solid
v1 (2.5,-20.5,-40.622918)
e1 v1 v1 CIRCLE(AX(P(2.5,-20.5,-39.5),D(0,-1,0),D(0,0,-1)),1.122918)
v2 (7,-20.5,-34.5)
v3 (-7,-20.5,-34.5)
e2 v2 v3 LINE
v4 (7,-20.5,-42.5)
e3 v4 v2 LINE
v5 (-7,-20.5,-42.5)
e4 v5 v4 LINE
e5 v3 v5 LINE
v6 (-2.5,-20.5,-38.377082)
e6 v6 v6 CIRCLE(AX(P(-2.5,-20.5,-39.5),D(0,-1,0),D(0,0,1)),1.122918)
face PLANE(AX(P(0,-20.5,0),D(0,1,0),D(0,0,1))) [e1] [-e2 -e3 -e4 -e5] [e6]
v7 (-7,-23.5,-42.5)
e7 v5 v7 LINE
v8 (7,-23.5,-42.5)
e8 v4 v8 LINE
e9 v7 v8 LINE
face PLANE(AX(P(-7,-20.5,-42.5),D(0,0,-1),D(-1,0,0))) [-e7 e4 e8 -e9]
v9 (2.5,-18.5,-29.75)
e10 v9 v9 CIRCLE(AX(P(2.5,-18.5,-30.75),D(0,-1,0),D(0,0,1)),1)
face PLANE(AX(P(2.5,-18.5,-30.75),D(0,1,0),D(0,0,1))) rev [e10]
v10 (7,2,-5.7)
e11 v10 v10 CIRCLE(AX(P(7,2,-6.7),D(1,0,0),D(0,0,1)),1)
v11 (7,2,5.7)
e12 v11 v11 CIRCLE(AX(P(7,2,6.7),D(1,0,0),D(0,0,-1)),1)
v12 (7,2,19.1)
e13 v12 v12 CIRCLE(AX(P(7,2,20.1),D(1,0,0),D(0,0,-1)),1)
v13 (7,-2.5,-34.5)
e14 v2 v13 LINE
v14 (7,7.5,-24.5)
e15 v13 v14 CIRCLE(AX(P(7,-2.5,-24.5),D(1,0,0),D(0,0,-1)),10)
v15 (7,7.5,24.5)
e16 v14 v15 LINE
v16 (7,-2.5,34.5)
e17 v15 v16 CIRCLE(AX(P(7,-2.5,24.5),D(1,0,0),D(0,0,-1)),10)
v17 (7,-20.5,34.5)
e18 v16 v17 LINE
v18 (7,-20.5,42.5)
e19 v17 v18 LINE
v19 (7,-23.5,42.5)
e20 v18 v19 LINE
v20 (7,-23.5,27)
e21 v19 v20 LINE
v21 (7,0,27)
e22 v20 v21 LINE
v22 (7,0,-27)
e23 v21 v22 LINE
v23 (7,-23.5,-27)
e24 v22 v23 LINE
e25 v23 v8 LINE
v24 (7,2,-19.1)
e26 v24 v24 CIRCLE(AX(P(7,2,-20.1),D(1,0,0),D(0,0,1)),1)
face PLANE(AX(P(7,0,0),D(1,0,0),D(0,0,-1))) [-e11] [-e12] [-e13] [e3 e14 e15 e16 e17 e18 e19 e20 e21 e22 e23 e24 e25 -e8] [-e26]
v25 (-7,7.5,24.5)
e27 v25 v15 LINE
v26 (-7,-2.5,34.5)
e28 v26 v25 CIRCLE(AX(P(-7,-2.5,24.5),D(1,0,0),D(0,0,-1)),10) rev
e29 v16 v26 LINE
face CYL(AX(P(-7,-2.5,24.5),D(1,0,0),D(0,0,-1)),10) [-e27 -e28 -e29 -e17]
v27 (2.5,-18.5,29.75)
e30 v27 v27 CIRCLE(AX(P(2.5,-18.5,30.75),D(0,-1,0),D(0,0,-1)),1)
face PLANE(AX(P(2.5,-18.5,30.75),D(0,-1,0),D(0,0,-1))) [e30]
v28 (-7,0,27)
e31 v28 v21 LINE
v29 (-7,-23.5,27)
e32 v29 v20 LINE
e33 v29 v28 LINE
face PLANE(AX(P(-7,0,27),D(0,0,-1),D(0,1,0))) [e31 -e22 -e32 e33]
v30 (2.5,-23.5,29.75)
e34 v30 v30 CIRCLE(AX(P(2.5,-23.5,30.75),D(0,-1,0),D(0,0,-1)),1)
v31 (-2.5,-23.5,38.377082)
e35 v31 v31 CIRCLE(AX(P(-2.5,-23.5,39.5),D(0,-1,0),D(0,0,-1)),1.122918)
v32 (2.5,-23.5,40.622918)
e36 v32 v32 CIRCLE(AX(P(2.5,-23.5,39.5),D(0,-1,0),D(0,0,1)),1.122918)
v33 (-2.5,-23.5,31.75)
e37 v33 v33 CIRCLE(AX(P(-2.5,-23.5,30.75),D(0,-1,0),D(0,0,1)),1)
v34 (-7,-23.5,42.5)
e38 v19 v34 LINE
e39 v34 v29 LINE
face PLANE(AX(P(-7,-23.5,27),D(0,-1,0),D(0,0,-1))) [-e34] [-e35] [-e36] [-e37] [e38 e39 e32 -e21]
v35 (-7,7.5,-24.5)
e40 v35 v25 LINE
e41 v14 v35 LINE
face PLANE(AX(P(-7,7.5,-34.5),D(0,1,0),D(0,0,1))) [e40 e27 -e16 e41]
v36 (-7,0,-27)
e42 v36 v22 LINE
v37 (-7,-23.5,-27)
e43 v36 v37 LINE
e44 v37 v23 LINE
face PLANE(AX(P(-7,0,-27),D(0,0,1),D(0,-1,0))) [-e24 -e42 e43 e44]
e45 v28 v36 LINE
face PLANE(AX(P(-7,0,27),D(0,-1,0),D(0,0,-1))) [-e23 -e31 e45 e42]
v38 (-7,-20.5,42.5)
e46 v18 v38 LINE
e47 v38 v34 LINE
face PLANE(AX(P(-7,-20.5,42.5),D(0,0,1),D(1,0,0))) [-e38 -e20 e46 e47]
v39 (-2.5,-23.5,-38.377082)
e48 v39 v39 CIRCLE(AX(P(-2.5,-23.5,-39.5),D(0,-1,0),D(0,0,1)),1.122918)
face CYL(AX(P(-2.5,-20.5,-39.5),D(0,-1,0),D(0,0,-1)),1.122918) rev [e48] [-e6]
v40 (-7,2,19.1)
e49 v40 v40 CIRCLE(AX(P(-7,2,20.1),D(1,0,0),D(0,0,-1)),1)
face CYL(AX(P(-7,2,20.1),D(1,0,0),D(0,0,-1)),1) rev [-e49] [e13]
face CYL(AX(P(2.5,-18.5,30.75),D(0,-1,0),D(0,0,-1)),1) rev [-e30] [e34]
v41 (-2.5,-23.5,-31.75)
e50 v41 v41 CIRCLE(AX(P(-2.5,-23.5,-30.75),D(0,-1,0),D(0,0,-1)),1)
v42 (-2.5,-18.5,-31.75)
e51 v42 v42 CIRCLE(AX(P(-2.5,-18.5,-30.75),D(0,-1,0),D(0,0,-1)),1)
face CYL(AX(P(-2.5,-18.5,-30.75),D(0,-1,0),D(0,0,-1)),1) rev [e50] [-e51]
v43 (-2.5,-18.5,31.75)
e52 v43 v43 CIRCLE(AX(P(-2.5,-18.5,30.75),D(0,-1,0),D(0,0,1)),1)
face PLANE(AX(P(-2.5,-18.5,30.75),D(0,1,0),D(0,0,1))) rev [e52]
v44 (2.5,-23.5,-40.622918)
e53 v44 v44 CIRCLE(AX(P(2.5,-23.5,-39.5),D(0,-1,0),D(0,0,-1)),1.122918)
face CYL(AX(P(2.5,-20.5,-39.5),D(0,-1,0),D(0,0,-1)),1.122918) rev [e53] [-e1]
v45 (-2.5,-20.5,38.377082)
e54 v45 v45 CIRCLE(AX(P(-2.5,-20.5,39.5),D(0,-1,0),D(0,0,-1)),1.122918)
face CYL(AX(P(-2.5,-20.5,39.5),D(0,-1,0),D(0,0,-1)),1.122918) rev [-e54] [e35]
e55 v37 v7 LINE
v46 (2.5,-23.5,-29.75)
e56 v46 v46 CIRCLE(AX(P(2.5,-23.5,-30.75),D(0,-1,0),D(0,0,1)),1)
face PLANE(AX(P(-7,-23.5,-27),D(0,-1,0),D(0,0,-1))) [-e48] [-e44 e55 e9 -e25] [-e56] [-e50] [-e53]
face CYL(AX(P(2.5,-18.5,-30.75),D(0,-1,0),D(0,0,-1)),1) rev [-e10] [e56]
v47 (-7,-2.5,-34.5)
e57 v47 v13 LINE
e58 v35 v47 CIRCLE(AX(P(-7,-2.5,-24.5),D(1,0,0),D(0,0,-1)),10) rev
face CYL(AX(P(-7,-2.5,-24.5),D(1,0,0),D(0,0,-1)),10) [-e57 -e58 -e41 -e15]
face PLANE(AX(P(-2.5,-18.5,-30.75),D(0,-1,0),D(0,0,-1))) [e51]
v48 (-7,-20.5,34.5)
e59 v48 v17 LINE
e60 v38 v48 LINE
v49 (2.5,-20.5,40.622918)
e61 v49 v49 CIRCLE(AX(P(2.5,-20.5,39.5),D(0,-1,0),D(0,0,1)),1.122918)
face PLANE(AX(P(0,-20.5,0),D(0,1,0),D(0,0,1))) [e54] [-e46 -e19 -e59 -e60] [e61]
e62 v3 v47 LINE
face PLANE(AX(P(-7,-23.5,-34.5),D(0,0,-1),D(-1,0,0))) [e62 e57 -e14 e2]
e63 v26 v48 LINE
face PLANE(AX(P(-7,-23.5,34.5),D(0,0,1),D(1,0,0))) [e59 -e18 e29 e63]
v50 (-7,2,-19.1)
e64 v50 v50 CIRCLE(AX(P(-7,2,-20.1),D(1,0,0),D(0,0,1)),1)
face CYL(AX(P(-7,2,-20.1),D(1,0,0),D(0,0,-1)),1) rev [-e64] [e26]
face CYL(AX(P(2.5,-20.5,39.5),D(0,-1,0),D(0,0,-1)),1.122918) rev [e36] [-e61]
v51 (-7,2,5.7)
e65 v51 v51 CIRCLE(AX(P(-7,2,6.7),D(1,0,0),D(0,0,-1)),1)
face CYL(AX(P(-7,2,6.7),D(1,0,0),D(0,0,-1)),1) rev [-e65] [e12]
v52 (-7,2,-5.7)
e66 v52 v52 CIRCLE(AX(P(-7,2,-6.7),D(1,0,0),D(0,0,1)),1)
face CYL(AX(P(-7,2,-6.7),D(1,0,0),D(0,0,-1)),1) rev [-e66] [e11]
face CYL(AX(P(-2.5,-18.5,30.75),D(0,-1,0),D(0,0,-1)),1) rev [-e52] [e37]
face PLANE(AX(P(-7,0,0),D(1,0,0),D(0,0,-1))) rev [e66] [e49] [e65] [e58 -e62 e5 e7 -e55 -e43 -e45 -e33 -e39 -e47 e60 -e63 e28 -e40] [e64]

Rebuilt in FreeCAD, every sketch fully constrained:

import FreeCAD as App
import Part
import Sketcher

V = App.Vector


def edges_at(feature, points):
    """Names of the edges that pass closest to the given points."""
    edges = feature.Shape.Edges
    near = lambda p: min(range(len(edges)), key=lambda i: edges[i].distToShape(Part.Vertex(*p))[0])
    return sorted({f"Edge{near(p) + 1}" for p in points})

doc = App.newDocument("Part")
body = doc.addObject("PartDesign::Body", "Body")

sketch1 = body.newObject("Sketcher::SketchObject", "Sketch")
sketch1.AttachmentSupport = (doc.getObject("YZ_Plane"), [""])
sketch1.MapMode = "FlatFace"
sketch1.addGeometry([
    Part.LineSegment(V(0, 27, 0), V(0, -27, 0)),
    Part.LineSegment(V(0, -27, 0), V(-24, -27, 0)),
    Part.LineSegment(V(-24, -27, 0), V(-24, -34, 0)),
    Part.LineSegment(V(-24, -34, 0), V(8, -34, 0)),
    Part.LineSegment(V(8, -34, 0), V(8, 34, 0)),
    Part.LineSegment(V(8, 34, 0), V(-24, 34, 0)),
    Part.LineSegment(V(-24, 34, 0), V(-24, 27, 0)),
    Part.LineSegment(V(-24, 27, 0), V(0, 27, 0)),
], False)
sketch1.addConstraint([
    Sketcher.Constraint("Coincident", 0, 2, 1, 1),
    Sketcher.Constraint("Coincident", 1, 2, 2, 1),
    Sketcher.Constraint("Coincident", 2, 2, 3, 1),
    Sketcher.Constraint("Coincident", 3, 2, 4, 1),
    Sketcher.Constraint("Coincident", 4, 2, 5, 1),
    Sketcher.Constraint("Coincident", 5, 2, 6, 1),
    Sketcher.Constraint("Coincident", 6, 2, 7, 1),
    Sketcher.Constraint("Coincident", 7, 2, 0, 1),
    Sketcher.Constraint("Vertical", 0),
    Sketcher.Constraint("Horizontal", 1),
    Sketcher.Constraint("Vertical", 2),
    Sketcher.Constraint("Horizontal", 3),
    Sketcher.Constraint("Vertical", 4),
    Sketcher.Constraint("Horizontal", 5),
    Sketcher.Constraint("Vertical", 6),
    Sketcher.Constraint("Horizontal", 7),
    Sketcher.Constraint("Symmetric", 0, 2, 7, 2, -1, 1),
    Sketcher.Constraint("Symmetric", 2, 2, 5, 2, -1),
    Sketcher.Constraint("DistanceX", 3, 1, 3, 2, 31.0),
    Sketcher.Constraint("DistanceY", 0, 2, 0, 1, 54.0),
    Sketcher.Constraint("DistanceY", 4, 1, 4, 2, 69.0),
    Sketcher.Constraint("DistanceX", 1, 2, 1, 1, 23.5),
])
pad1 = body.newObject("PartDesign::Pad", "Pad")
pad1.Profile = sketch1
pad1.Type = "TwoLengths"
pad1.Length = 7
pad1.Length2 = 7
doc.recompute()

fillet = body.newObject("PartDesign::Fillet", "Fillet")
fillet.Base = (pad1, edges_at(pad1, [(0, 7.5, 34.5), (0, 7.5, -34.5)]))
fillet.Radius = 10

sketch2 = body.newObject("Sketcher::SketchObject", "Sketch001")
sketch2.AttachmentSupport = (doc.getObject("YZ_Plane"), [""])
sketch2.MapMode = "FlatFace"
sketch2.AttachmentOffset = App.Placement(V(0, 0, 7), App.Rotation())
sketch2.addGeometry([
    Part.Circle(V(2, 6.7, 0), V(0, 0, 1), 1),
    Part.Circle(V(2, 20.1, 0), V(0, 0, 1), 1),
    Part.Circle(V(2, -20.1, 0), V(0, 0, 1), 1),
    Part.Circle(V(2, -6.7, 0), V(0, 0, 1), 1),
], False)
sketch2.addConstraint([
    Sketcher.Constraint("Equal", 0, 1),
    Sketcher.Constraint("Equal", 1, 2),
    Sketcher.Constraint("Equal", 2, 3),
    Sketcher.Constraint("Symmetric", 1, 3, 2, 3, -1),
    Sketcher.Constraint("Symmetric", 0, 3, 3, 3, -1),
    Sketcher.Constraint("Vertical", 0, 3, 1, 3),
    Sketcher.Constraint("Diameter", 0, 2.0),
    Sketcher.Constraint("DistanceX", -1, 1, 0, 3, 2.0),
    Sketcher.Constraint("DistanceY", -1, 1, 0, 3, 6.7),
    Sketcher.Constraint("DistanceY", -1, 1, 1, 3, 20.1),
])
pocket1 = body.newObject("PartDesign::Pocket", "Pocket")
pocket1.Profile = sketch2
pocket1.Type = "ThroughAll"

sketch3 = body.newObject("Sketcher::SketchObject", "Sketch002")
sketch3.AttachmentSupport = (doc.getObject("XZ_Plane"), [""])
sketch3.MapMode = "FlatFace"
sketch3.AttachmentOffset = App.Placement(V(0, 0, 23.5), App.Rotation())
sketch3.addGeometry([
    Part.Circle(V(-2.5, -30.8, 0), V(0, 0, 1), 1),
    Part.Circle(V(2.5, -30.8, 0), V(0, 0, 1), 1),
    Part.Circle(V(-2.5, 30.8, 0), V(0, 0, 1), 1),
    Part.Circle(V(2.5, 30.8, 0), V(0, 0, 1), 1),
], False)
sketch3.addConstraint([
    Sketcher.Constraint("Equal", 0, 1),
    Sketcher.Constraint("Equal", 1, 2),
    Sketcher.Constraint("Equal", 2, 3),
    Sketcher.Constraint("Symmetric", 1, 3, 2, 3, -1, 1),
    Sketcher.Constraint("Symmetric", 0, 3, 3, 3, -1, 1),
    Sketcher.Constraint("Symmetric", 0, 3, 1, 3, -2),
    Sketcher.Constraint("Diameter", 0, 2.0),
    Sketcher.Constraint("DistanceX", 0, 3, 1, 3, 5.0),
    Sketcher.Constraint("DistanceY", 0, 3, 2, 3, 61.5),
])
pocket2 = body.newObject("PartDesign::Pocket", "Pocket001")
pocket2.Profile = sketch3
pocket2.Length = 5

sketch4 = body.newObject("Sketcher::SketchObject", "Sketch003")
sketch4.AttachmentSupport = (doc.getObject("XZ_Plane"), [""])
sketch4.MapMode = "FlatFace"
sketch4.AttachmentOffset = App.Placement(V(0, 0, 23.5), App.Rotation())
sketch4.addGeometry([
    Part.LineSegment(V(-7, 42.5, 0), V(-7, 34.5, 0)),
    Part.LineSegment(V(-7, 34.5, 0), V(7, 34.5, 0)),
    Part.LineSegment(V(7, 34.5, 0), V(7, 42.5, 0)),
    Part.LineSegment(V(7, 42.5, 0), V(-7, 42.5, 0)),
    Part.Circle(V(-2.5, 39.5, 0), V(0, 0, 1), 1.1),
    Part.Circle(V(2.5, 39.5, 0), V(0, 0, 1), 1.1),
    Part.LineSegment(V(-7, -34.5, 0), V(-7, -42.5, 0)),
    Part.LineSegment(V(-7, -42.5, 0), V(7, -42.5, 0)),
    Part.LineSegment(V(7, -42.5, 0), V(7, -34.5, 0)),
    Part.LineSegment(V(7, -34.5, 0), V(-7, -34.5, 0)),
    Part.Circle(V(-2.5, -39.5, 0), V(0, 0, 1), 1.1),
    Part.Circle(V(2.5, -39.5, 0), V(0, 0, 1), 1.1),
], False)
sketch4.addConstraint([
    Sketcher.Constraint("Coincident", 0, 2, 1, 1),
    Sketcher.Constraint("Coincident", 1, 2, 2, 1),
    Sketcher.Constraint("Coincident", 2, 2, 3, 1),
    Sketcher.Constraint("Coincident", 3, 2, 0, 1),
    Sketcher.Constraint("Coincident", 6, 2, 7, 1),
    Sketcher.Constraint("Coincident", 7, 2, 8, 1),
    Sketcher.Constraint("Coincident", 8, 2, 9, 1),
    Sketcher.Constraint("Coincident", 9, 2, 6, 1),
    Sketcher.Constraint("Vertical", 0),
    Sketcher.Constraint("Horizontal", 1),
    Sketcher.Constraint("Vertical", 2),
    Sketcher.Constraint("Horizontal", 3),
    Sketcher.Constraint("Vertical", 6),
    Sketcher.Constraint("Horizontal", 7),
    Sketcher.Constraint("Vertical", 8),
    Sketcher.Constraint("Horizontal", 9),
    Sketcher.Constraint("Equal", 4, 5),
    Sketcher.Constraint("Equal", 5, 10),
    Sketcher.Constraint("Equal", 10, 11),
    Sketcher.Constraint("Symmetric", 5, 3, 10, 3, -1, 1),
    Sketcher.Constraint("Symmetric", 4, 3, 11, 3, -1, 1),
    Sketcher.Constraint("Symmetric", 2, 2, 6, 2, -1, 1),
    Sketcher.Constraint("Symmetric", 0, 2, 8, 2, -1, 1),
    Sketcher.Constraint("Symmetric", 4, 3, 5, 3, -2),
    Sketcher.Constraint("Vertical", 3, 2, 6, 2),
    Sketcher.Constraint("DistanceX", 1, 1, 1, 2, 14.0),
    Sketcher.Constraint("DistanceY", 0, 2, 0, 1, 8.0),
    Sketcher.Constraint("DistanceX", 4, 3, 5, 3, 5.0),
    Sketcher.Constraint("DistanceY", 10, 3, 4, 3, 79.0),
    Sketcher.Constraint("DistanceY", 0, 2, 4, 3, 5.0),
    Sketcher.Constraint("Diameter", 4, 2.245836),
])
pad2 = body.newObject("PartDesign::Pad", "Pad001")
pad2.Profile = sketch4
pad2.Length = 3
pad2.Reversed = True

doc.recompute()
